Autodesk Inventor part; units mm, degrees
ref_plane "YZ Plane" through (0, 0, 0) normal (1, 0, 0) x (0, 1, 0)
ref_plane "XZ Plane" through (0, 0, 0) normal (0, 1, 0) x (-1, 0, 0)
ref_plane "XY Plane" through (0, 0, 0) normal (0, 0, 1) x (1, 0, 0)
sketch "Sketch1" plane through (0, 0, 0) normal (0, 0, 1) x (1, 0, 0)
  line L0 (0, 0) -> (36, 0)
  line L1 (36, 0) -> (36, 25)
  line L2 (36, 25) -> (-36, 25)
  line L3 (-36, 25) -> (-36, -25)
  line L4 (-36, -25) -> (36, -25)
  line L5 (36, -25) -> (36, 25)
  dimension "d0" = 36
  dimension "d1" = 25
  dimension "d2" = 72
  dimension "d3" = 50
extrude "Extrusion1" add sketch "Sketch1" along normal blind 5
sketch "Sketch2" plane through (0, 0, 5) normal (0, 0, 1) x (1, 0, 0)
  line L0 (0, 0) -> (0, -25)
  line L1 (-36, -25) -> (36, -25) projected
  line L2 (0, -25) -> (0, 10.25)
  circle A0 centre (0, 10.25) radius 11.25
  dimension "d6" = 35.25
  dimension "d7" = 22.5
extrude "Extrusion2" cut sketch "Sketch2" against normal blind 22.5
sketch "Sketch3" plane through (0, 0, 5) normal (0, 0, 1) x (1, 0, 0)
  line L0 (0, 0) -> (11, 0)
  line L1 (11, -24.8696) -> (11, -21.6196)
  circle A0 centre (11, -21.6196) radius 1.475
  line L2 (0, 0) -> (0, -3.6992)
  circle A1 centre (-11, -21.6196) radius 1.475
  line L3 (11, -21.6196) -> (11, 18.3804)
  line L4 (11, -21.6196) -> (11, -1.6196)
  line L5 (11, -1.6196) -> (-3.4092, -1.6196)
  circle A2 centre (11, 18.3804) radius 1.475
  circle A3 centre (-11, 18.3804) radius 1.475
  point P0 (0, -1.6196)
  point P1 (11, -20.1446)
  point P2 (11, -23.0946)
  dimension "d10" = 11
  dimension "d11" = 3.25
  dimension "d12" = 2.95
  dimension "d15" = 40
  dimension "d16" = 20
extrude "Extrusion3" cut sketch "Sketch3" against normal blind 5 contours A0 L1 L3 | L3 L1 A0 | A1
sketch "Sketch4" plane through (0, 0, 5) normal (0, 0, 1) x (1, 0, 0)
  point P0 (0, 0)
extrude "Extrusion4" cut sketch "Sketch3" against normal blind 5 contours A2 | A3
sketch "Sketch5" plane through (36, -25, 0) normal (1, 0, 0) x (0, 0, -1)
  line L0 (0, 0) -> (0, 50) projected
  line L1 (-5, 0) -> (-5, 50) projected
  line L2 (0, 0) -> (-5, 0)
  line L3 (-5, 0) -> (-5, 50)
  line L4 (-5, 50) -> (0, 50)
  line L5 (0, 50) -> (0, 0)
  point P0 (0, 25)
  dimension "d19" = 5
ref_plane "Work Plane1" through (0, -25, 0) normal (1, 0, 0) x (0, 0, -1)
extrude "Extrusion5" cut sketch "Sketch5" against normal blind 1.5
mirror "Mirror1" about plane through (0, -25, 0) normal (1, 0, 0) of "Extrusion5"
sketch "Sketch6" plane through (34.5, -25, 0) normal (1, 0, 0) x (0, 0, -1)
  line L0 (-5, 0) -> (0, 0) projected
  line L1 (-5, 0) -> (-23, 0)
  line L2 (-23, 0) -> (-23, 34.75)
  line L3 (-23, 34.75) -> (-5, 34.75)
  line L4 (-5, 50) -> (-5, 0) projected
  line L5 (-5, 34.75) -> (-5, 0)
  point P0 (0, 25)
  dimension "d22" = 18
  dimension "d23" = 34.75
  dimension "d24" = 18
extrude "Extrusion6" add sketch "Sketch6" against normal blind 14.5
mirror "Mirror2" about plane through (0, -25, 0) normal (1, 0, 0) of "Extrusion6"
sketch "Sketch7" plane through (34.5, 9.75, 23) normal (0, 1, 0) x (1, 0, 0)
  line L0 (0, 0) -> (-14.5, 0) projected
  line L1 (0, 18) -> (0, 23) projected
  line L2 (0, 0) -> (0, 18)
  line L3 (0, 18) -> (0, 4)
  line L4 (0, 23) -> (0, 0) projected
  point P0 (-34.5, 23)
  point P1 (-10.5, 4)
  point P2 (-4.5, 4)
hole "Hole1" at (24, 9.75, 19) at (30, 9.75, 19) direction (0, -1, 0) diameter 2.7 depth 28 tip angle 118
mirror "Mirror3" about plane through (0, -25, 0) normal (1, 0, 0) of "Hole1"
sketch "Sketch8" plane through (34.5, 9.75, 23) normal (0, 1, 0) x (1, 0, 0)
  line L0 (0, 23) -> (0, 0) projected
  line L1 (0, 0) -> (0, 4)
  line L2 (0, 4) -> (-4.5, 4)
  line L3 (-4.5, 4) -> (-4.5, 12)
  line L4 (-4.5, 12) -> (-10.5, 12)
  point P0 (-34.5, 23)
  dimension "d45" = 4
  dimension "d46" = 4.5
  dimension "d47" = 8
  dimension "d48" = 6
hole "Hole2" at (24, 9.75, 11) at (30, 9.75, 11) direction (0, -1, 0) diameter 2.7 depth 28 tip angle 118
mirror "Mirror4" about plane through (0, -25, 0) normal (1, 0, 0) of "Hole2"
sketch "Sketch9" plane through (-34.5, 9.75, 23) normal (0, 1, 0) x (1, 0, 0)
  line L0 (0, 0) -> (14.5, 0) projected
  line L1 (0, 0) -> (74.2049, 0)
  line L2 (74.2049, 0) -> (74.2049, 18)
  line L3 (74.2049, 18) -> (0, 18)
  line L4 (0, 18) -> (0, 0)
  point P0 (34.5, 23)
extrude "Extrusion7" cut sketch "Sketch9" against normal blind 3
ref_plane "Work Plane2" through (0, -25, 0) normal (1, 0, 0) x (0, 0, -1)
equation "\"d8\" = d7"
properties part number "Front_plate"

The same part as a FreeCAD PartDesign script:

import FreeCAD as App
import Part
import Sketcher
from FreeCAD import Vector


def add_polygon(sketch, points):
    """Adds a closed chain of lines whose ends are joined by coincident constraints."""
    first, n = sketch.GeometryCount, len(points)
    for a, b in zip(points, points[1:] + points[:1]):
        sketch.addGeometry(Part.LineSegment(App.Vector(*a, 0), App.Vector(*b, 0)), False)
    for i in range(n):
        sketch.addConstraint(Sketcher.Constraint("Coincident", first + i, 2, first + (i + 1) % n, 1))

doc = App.newDocument("Part")
body = doc.addObject("PartDesign::Body", "Body")

sketch1 = doc.addObject("Sketcher::SketchObject", "Sketch")
body.addObject(sketch1)
sketch1.AttachmentSupport = (doc.XY_Plane, [""])
sketch1.MapMode = "FlatFace"
add_polygon(sketch1, [(36, -25), (36, 25), (-36, 25), (-36, -25)])
sketch1.addConstraint([
    Sketcher.Constraint("Vertical", 0),
    Sketcher.Constraint("Horizontal", 1),
    Sketcher.Constraint("Vertical", 2),
    Sketcher.Constraint("Horizontal", 3),
    Sketcher.Constraint("Symmetric", 0, 2, 2, 2, -1, 1),
    Sketcher.Constraint("DistanceX", 1, 2, 1, 1, 72.0),
    Sketcher.Constraint("DistanceY", 0, 1, 0, 2, 50.0),
])
pad1 = doc.addObject("PartDesign::Pad", "Pad")
body.addObject(pad1)
pad1.Profile = sketch1
pad1.Length = 5

sketch2 = doc.addObject("Sketcher::SketchObject", "Sketch001")
body.addObject(sketch2)
sketch2.AttachmentSupport = (doc.XY_Plane, [""])
sketch2.MapMode = "FlatFace"
sketch2.AttachmentOffset = App.Placement(Vector(0, 0, 5), App.Rotation())
sketch2.addGeometry(Part.Circle(Vector(0, 10, 0), Vector(0, 0, 1), 11), False)
sketch2.addConstraint([
    Sketcher.Constraint("PointOnObject", 0, 3, -2),
    Sketcher.Constraint("Diameter", 0, 22.5),
    Sketcher.Constraint("DistanceY", -1, 1, 0, 3, 10.25),
])
pocket1 = doc.addObject("PartDesign::Pocket", "Pocket")
body.addObject(pocket1)
pocket1.Profile = sketch2
pocket1.Length = 22.5

sketch3 = doc.addObject("Sketcher::SketchObject", "Sketch002")
body.addObject(sketch3)
sketch3.AttachmentSupport = (doc.XY_Plane, [""])
sketch3.MapMode = "FlatFace"
sketch3.AttachmentOffset = App.Placement(Vector(0, 0, 5), App.Rotation())
sketch3.addGeometry([
    Part.Circle(Vector(11, -21.6, 0), Vector(0, 0, 1), 1.5),
    Part.Circle(Vector(-11, -21.6, 0), Vector(0, 0, 1), 1.5),
], False)
sketch3.addConstraint([
    Sketcher.Constraint("Equal", 0, 1),
    Sketcher.Constraint("Symmetric", 0, 3, 1, 3, -2),
    Sketcher.Constraint("Diameter", 0, 2.95),
    Sketcher.Constraint("DistanceX", -1, 1, 0, 3, 11.0),
    Sketcher.Constraint("DistanceY", 0, 3, -1, 1, 21.6196),
])
pocket2 = doc.addObject("PartDesign::Pocket", "Pocket001")
body.addObject(pocket2)
pocket2.Profile = sketch3
pocket2.Length = 5

sketch4 = doc.addObject("Sketcher::SketchObject", "Sketch003")
body.addObject(sketch4)
sketch4.AttachmentSupport = (doc.XY_Plane, [""])
sketch4.MapMode = "FlatFace"
sketch4.AttachmentOffset = App.Placement(Vector(0, 0, 5), App.Rotation())
sketch4.addGeometry([
    Part.Circle(Vector(11, 18.4, 0), Vector(0, 0, 1), 1.5),
    Part.Circle(Vector(-11, 18.4, 0), Vector(0, 0, 1), 1.5),
], False)
sketch4.addConstraint([
    Sketcher.Constraint("Equal", 0, 1),
    Sketcher.Constraint("Symmetric", 0, 3, 1, 3, -2),
    Sketcher.Constraint("Diameter", 0, 2.95),
    Sketcher.Constraint("DistanceX", -1, 1, 0, 3, 11.0),
    Sketcher.Constraint("DistanceY", -1, 1, 0, 3, 18.3804),
])
pocket3 = doc.addObject("PartDesign::Pocket", "Pocket002")
body.addObject(pocket3)
pocket3.Profile = sketch4
pocket3.Length = 5

sketch5 = doc.addObject("Sketcher::SketchObject", "Sketch004")
body.addObject(sketch5)
sketch5.AttachmentSupport = (doc.YZ_Plane, [""])
sketch5.MapMode = "FlatFace"
sketch5.AttachmentOffset = App.Placement(Vector(0, 0, 36), App.Rotation())
add_polygon(sketch5, [(-25, 5), (-25, 0), (25, 0), (25, 5)])
sketch5.addConstraint([
    Sketcher.Constraint("Vertical", 0),
    Sketcher.Constraint("Horizontal", 1),
    Sketcher.Constraint("Vertical", 2),
    Sketcher.Constraint("Horizontal", 3),
    Sketcher.Constraint("Symmetric", 0, 2, 1, 2, -1, 1),
    Sketcher.Constraint("DistanceY", 0, 2, 0, 1, 5.0),
    Sketcher.Constraint("DistanceX", 1, 1, 1, 2, 50.0),
])
pocket4 = doc.addObject("PartDesign::Pocket", "Pocket003")
body.addObject(pocket4)
pocket4.Profile = sketch5
pocket4.Length = 1.5
doc.recompute()

mirrored = doc.addObject("PartDesign::Mirrored", "Mirrored")
body.addObject(mirrored)
mirrored.Originals = [pocket4]
mirrored.MirrorPlane = (doc.YZ_Plane, [""])
body.Tip = mirrored

sketch6 = doc.addObject("Sketcher::SketchObject", "Sketch005")
body.addObject(sketch6)
sketch6.AttachmentSupport = (doc.YZ_Plane, [""])
sketch6.MapMode = "FlatFace"
sketch6.AttachmentOffset = App.Placement(Vector(0, 0, 34.5), App.Rotation())
add_polygon(sketch6, [(-25, 23), (-25, 5), (10, 5), (10, 23)])
sketch6.addConstraint([
    Sketcher.Constraint("Vertical", 0),
    Sketcher.Constraint("Horizontal", 1),
    Sketcher.Constraint("Vertical", 2),
    Sketcher.Constraint("Horizontal", 3),
    Sketcher.Constraint("DistanceY", 0, 2, 0, 1, 18.0),
    Sketcher.Constraint("DistanceX", 1, 1, 1, 2, 34.75),
    Sketcher.Constraint("DistanceX", 0, 2, -1, 1, 25.0),
    Sketcher.Constraint("DistanceY", -1, 1, 0, 2, 5.0),
])
pad2 = doc.addObject("PartDesign::Pad", "Pad001")
body.addObject(pad2)
pad2.Profile = sketch6
pad2.Length = 14.5
pad2.Reversed = True
doc.recompute()

mirrored2 = doc.addObject("PartDesign::Mirrored", "Mirrored001")
body.addObject(mirrored2)
mirrored2.Originals = [pad2]
mirrored2.MirrorPlane = (doc.YZ_Plane, [""])
body.Tip = mirrored2

sketch7 = doc.addObject("Sketcher::SketchObject", "Sketch006")
body.addObject(sketch7)
sketch7.AttachmentSupport = (doc.XZ_Plane, [""])
sketch7.MapMode = "FlatFace"
sketch7.AttachmentOffset = App.Placement(Vector(0, 0, -9.75), App.Rotation())
sketch7.addGeometry([
    Part.Circle(Vector(24, 19, 0), Vector(0, 0, 1), 1.4),
    Part.Circle(Vector(30, 19, 0), Vector(0, 0, 1), 1.4),
], False)
sketch7.addConstraint([
    Sketcher.Constraint("Equal", 0, 1),
    Sketcher.Constraint("Horizontal", 0, 3, 1, 3),
    Sketcher.Constraint("Diameter", 0, 2.7),
    Sketcher.Constraint("DistanceX", -1, 1, 0, 3, 24.0),
    Sketcher.Constraint("DistanceY", -1, 1, 0, 3, 19.0),
    Sketcher.Constraint("DistanceX", -1, 1, 1, 3, 30.0),
])
doc.recompute()
hole = doc.addObject("PartDesign::Hole", "Hole")
body.addObject(hole)
hole.Profile = sketch7
hole.ThreadType = "None"
hole.Diameter = 2.7
hole.DepthType = "Dimension"
hole.Depth = 28
hole.DrillPoint = "Angled"
hole.DrillPointAngle = 118
hole.Reversed = True
doc.recompute()

mirrored3 = doc.addObject("PartDesign::Mirrored", "Mirrored002")
body.addObject(mirrored3)
mirrored3.Originals = [hole]
mirrored3.MirrorPlane = (doc.YZ_Plane, [""])
body.Tip = mirrored3

sketch8 = doc.addObject("Sketcher::SketchObject", "Sketch007")
body.addObject(sketch8)
sketch8.AttachmentSupport = (doc.XZ_Plane, [""])
sketch8.MapMode = "FlatFace"
sketch8.AttachmentOffset = App.Placement(Vector(0, 0, -9.75), App.Rotation())
sketch8.addGeometry([
    Part.Circle(Vector(24, 11, 0), Vector(0, 0, 1), 1.4),
    Part.Circle(Vector(30, 11, 0), Vector(0, 0, 1), 1.4),
], False)
sketch8.addConstraint([
    Sketcher.Constraint("Equal", 0, 1),
    Sketcher.Constraint("Horizontal", 0, 3, 1, 3),
    Sketcher.Constraint("Diameter", 0, 2.7),
    Sketcher.Constraint("DistanceX", -1, 1, 0, 3, 24.0),
    Sketcher.Constraint("DistanceY", -1, 1, 0, 3, 11.0),
    Sketcher.Constraint("DistanceX", -1, 1, 1, 3, 30.0),
])
doc.recompute()
hole2 = doc.addObject("PartDesign::Hole", "Hole001")
body.addObject(hole2)
hole2.Profile = sketch8
hole2.ThreadType = "None"
hole2.Diameter = 2.7
hole2.DepthType = "Dimension"
hole2.Depth = 28
hole2.DrillPoint = "Angled"
hole2.DrillPointAngle = 118
hole2.Reversed = True
doc.recompute()

mirrored4 = doc.addObject("PartDesign::Mirrored", "Mirrored003")
body.addObject(mirrored4)
mirrored4.Originals = [hole2]
mirrored4.MirrorPlane = (doc.YZ_Plane, [""])
body.Tip = mirrored4

sketch9 = doc.addObject("Sketcher::SketchObject", "Sketch008")
body.addObject(sketch9)
sketch9.AttachmentSupport = (doc.XZ_Plane, [""])
sketch9.MapMode = "FlatFace"
sketch9.AttachmentOffset = App.Placement(Vector(0, 0, -9.75), App.Rotation())
add_polygon(sketch9, [(-34, 5), (-34, 23), (40, 23), (40, 5)])
sketch9.addConstraint([
    Sketcher.Constraint("Vertical", 0),
    Sketcher.Constraint("Horizontal", 1),
    Sketcher.Constraint("Vertical", 2),
    Sketcher.Constraint("Horizontal", 3),
    Sketcher.Constraint("DistanceY", 0, 1, 0, 2, 18.0),
    Sketcher.Constraint("DistanceY", -1, 1, 0, 2, 23.0),
    Sketcher.Constraint("DistanceX", 0, 2, -1, 1, 34.5),
    Sketcher.Constraint("DistanceX", 1, 1, 1, 2, 74.205),
])
pocket5 = doc.addObject("PartDesign::Pocket", "Pocket004")
body.addObject(pocket5)
pocket5.Profile = sketch9
pocket5.Length = 3
pocket5.Reversed = True

doc.recompute()
